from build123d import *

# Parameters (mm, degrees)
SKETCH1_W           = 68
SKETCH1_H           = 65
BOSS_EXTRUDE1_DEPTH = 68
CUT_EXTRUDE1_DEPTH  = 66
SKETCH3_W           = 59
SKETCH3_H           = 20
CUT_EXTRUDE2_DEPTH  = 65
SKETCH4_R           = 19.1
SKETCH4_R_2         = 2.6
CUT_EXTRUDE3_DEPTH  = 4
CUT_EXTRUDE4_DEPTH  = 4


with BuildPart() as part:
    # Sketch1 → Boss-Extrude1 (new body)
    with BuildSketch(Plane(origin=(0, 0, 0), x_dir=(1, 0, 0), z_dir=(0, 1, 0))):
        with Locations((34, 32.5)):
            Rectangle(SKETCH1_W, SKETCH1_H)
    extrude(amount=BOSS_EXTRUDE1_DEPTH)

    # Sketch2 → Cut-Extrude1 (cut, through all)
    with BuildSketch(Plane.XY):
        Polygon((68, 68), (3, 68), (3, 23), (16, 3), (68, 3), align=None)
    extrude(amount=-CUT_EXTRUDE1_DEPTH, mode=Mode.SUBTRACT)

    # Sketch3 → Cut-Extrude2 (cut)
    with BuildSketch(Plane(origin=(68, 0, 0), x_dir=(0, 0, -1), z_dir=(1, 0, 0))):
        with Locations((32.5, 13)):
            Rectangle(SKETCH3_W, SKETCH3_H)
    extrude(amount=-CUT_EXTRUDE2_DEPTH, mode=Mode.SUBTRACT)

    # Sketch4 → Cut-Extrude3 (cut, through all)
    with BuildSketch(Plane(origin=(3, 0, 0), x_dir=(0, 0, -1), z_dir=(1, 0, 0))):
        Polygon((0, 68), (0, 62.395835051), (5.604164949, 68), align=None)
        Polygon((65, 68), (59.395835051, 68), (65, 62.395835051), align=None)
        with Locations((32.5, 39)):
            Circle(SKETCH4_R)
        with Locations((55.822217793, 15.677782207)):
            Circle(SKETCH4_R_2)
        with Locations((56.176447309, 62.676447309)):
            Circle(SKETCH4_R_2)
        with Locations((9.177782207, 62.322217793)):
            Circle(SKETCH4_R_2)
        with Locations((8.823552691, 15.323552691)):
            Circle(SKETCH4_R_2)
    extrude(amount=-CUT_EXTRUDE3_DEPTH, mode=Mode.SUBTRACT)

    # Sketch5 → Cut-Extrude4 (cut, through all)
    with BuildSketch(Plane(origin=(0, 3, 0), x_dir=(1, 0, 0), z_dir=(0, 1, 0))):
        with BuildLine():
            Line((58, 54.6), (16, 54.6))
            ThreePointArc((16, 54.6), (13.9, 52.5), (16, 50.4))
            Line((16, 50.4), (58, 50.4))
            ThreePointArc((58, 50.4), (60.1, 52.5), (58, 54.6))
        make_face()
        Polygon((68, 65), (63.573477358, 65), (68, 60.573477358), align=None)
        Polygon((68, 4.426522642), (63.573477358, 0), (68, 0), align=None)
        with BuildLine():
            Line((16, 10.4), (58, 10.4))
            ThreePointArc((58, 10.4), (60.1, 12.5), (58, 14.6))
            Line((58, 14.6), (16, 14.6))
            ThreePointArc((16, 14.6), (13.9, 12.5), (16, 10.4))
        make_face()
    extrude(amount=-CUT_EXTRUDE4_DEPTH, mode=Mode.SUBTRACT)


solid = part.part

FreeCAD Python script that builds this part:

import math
import FreeCAD as App
import Part
import Sketcher


def add_polygon(sketch, points):
    """Adds a closed chain of lines whose ends are joined by coincident constraints."""
    first, n = sketch.GeometryCount, len(points)
    for a, b in zip(points, points[1:] + points[:1]):
        sketch.addGeometry(Part.LineSegment(App.Vector(*a, 0), App.Vector(*b, 0)), False)
    for i in range(n):
        sketch.addConstraint(Sketcher.Constraint("Coincident", first + i, 2, first + (i + 1) % n, 1))

doc = App.newDocument("Part")
params = doc.addObject("Spreadsheet::Sheet", "Params")
for row, (alias, value) in enumerate([
    ("sketch1_width", "68 mm"),
    ("sketch1_height", "65 mm"),
    ("pad1_length", "68 mm"),
    ("sketch2_width", "65 mm"),
    ("sketch2_width2", "52 mm"),
    ("sketch2_height", "45 mm"),
    ("sketch3_width", "20 mm"),
    ("sketch3_height", "59 mm"),
    ("pocket2_length", "65 mm"),
    ("sketch4_diameter", "38.2 mm"),
    ("sketch4_diameter2", "5.2 mm"),
    ("sketch5_radius", "2.1 mm"),
    ("sketch5_width", "42 mm"),
], start=1):
    params.set(f"A{row}", alias)
    params.set(f"B{row}", "=" + value)
    params.setAlias(f"B{row}", alias)

body = doc.addObject("PartDesign::Body", "Body")

# Sketch on XZ plane
sketch1 = doc.addObject("Sketcher::SketchObject", "Sketch")
body.addObject(sketch1)
sketch1.AttachmentSupport = (doc.XZ_Plane, [""])
sketch1.MapMode = "FlatFace"
add_polygon(sketch1, [(0, -65), (0, 0), (68, 0), (68, -65)])  # lines 0-3
sketch1.addConstraint(Sketcher.Constraint("Vertical", 0))
sketch1.addConstraint(Sketcher.Constraint("Horizontal", 1))
sketch1.addConstraint(Sketcher.Constraint("Vertical", 2))
sketch1.addConstraint(Sketcher.Constraint("Horizontal", 3))
sketch1.addConstraint(Sketcher.Constraint("Coincident", 0, 2, -1, 1))
sketch1.addConstraint(Sketcher.Constraint("DistanceX", 1, 1, 1, 2, 68.0))
sketch1.addConstraint(Sketcher.Constraint("DistanceY", 0, 1, 0, 2, 65.0))
sketch1.setExpression("Constraints[9]", "Params.sketch1_width")
sketch1.setExpression("Constraints[10]", "Params.sketch1_height")
pad1 = doc.addObject("PartDesign::Pad", "Pad")
body.addObject(pad1)
pad1.Profile = sketch1
pad1.setExpression("Length", "Params.pad1_length")
pad1.Reversed = True

# Sketch on XY plane
sketch2 = doc.addObject("Sketcher::SketchObject", "Sketch001")
body.addObject(sketch2)
sketch2.AttachmentSupport = (doc.XY_Plane, [""])
sketch2.MapMode = "FlatFace"
add_polygon(sketch2, [(68, 68), (3, 68), (3, 23), (16, 3), (68, 3)])  # lines 0-4
sketch2.addConstraint(Sketcher.Constraint("Horizontal", 0))
sketch2.addConstraint(Sketcher.Constraint("Vertical", 1))
sketch2.addConstraint(Sketcher.Constraint("Horizontal", 3))
sketch2.addConstraint(Sketcher.Constraint("Vertical", 4))
sketch2.addConstraint(Sketcher.Constraint("Equal", 0, 4))
sketch2.addConstraint(Sketcher.Constraint("DistanceX", 0, 2, 0, 1, 65.0))
sketch2.addConstraint(Sketcher.Constraint("DistanceX", 3, 1, 3, 2, 52.0))
sketch2.addConstraint(Sketcher.Constraint("DistanceY", 1, 2, 1, 1, 45.0))
sketch2.addConstraint(Sketcher.Constraint("DistanceX", -1, 1, 0, 2, 3.0))
sketch2.addConstraint(Sketcher.Constraint("DistanceY", -1, 1, 0, 2, 68.0))
sketch2.setExpression("Constraints[10]", "Params.sketch2_width")
sketch2.setExpression("Constraints[11]", "Params.sketch2_width2")
sketch2.setExpression("Constraints[12]", "Params.sketch2_height")
pocket1 = doc.addObject("PartDesign::Pocket", "Pocket")
body.addObject(pocket1)
pocket1.Profile = sketch2
pocket1.Type = "ThroughAll"

# Sketch on YZ plane
sketch3 = doc.addObject("Sketcher::SketchObject", "Sketch002")
body.addObject(sketch3)
sketch3.AttachmentSupport = (doc.YZ_Plane, [""])
sketch3.MapMode = "FlatFace"
sketch3.AttachmentOffset = App.Placement(App.Vector(0, 0, 68), App.Rotation())
add_polygon(sketch3, [(23, -3), (3, -3), (3, -62), (23, -62)])  # lines 0-3
sketch3.addConstraint(Sketcher.Constraint("Horizontal", 0))
sketch3.addConstraint(Sketcher.Constraint("Vertical", 1))
sketch3.addConstraint(Sketcher.Constraint("Horizontal", 2))
sketch3.addConstraint(Sketcher.Constraint("Vertical", 3))
sketch3.addConstraint(Sketcher.Constraint("DistanceX", 0, 2, 0, 1, 20.0))
sketch3.addConstraint(Sketcher.Constraint("DistanceY", 1, 2, 1, 1, 59.0))
sketch3.addConstraint(Sketcher.Constraint("DistanceX", -1, 1, 0, 2, 3.0))
sketch3.addConstraint(Sketcher.Constraint("DistanceY", 0, 2, -1, 1, 3.0))
sketch3.setExpression("Constraints[8]", "Params.sketch3_width")
sketch3.setExpression("Constraints[9]", "Params.sketch3_height")
pocket2 = doc.addObject("PartDesign::Pocket", "Pocket001")
body.addObject(pocket2)
pocket2.Profile = sketch3
pocket2.setExpression("Length", "Params.pocket2_length")

# Sketch on YZ plane
sketch4 = doc.addObject("Sketcher::SketchObject", "Sketch003")
body.addObject(sketch4)
sketch4.AttachmentSupport = (doc.YZ_Plane, [""])
sketch4.MapMode = "FlatFace"
sketch4.AttachmentOffset = App.Placement(App.Vector(0, 0, 3), App.Rotation())
add_polygon(sketch4, [(68, 0), (62.4, 0), (68, -5.6)])  # lines 0-2
add_polygon(sketch4, [(68, -65), (68, -59.4), (62.4, -65)])  # lines 3-5
sketch4.addGeometry(Part.Circle(App.Vector(39, -32.5, 0), App.Vector(0, 0, 1), 19.1), False)  # 6
sketch4.addGeometry(Part.Circle(App.Vector(15.7, -55.8, 0), App.Vector(0, 0, 1), 2.6), False)  # 7
sketch4.addGeometry(Part.Circle(App.Vector(62.7, -56.2, 0), App.Vector(0, 0, 1), 2.6), False)  # 8
sketch4.addGeometry(Part.Circle(App.Vector(62.3, -9.2, 0), App.Vector(0, 0, 1), 2.6), False)  # 9
sketch4.addGeometry(Part.Circle(App.Vector(15.3, -8.8, 0), App.Vector(0, 0, 1), 2.6), False)  # 10
sketch4.addConstraint(Sketcher.Constraint("Horizontal", 0))
sketch4.addConstraint(Sketcher.Constraint("Vertical", 2))
sketch4.addConstraint(Sketcher.Constraint("Vertical", 3))
sketch4.addConstraint(Sketcher.Constraint("Horizontal", 5))
sketch4.addConstraint(Sketcher.Constraint("Equal", 7, 8))
sketch4.addConstraint(Sketcher.Constraint("Equal", 8, 9))
sketch4.addConstraint(Sketcher.Constraint("Equal", 9, 10))
sketch4.addConstraint(Sketcher.Constraint("PointOnObject", 0, 2, -1))
sketch4.addConstraint(Sketcher.Constraint("Perpendicular", 1, 4))
sketch4.addConstraint(Sketcher.Constraint("Vertical", 2, 2, 3, 2))
sketch4.addConstraint(Sketcher.Constraint("Vertical", 0, 2, 4, 2))
sketch4.addConstraint(Sketcher.Constraint("Equal", 5, 2))
sketch4.addConstraint(Sketcher.Constraint("Diameter", 6, 38.2))
sketch4.addConstraint(Sketcher.Constraint("Diameter", 7, 5.2))
sketch4.addConstraint(Sketcher.Constraint("DistanceX", -1, 1, 6, 3, 39.0))
sketch4.addConstraint(Sketcher.Constraint("DistanceX", -1, 1, 1, 2, 68.0))
sketch4.addConstraint(Sketcher.Constraint("DistanceY", 4, 2, -1, 1, 65.0))
sketch4.addConstraint(Sketcher.Constraint("DistanceY", 6, 3, -1, 1, 32.5))
sketch4.addConstraint(Sketcher.Constraint("DistanceX", 0, 2, 0, 1, 5.604165))
sketch4.addConstraint(Sketcher.Constraint("DistanceY", 8, 3, 7, 3, 0.35423))
sketch4.addConstraint(Sketcher.Constraint("DistanceX", 9, 3, 8, 3, 0.35423))
sketch4.addConstraint(Sketcher.Constraint("DistanceX", 10, 3, 7, 3, 0.35423))
sketch4.addConstraint(Sketcher.Constraint("DistanceY", 9, 3, 10, 3, 0.35423))
sketch4.addConstraint(Sketcher.Constraint("DistanceX", -1, 1, 7, 3, 15.677782))
sketch4.addConstraint(Sketcher.Constraint("DistanceY", 7, 3, -1, 1, 55.822218))
sketch4.addConstraint(Sketcher.Constraint("DistanceX", -1, 1, 8, 3, 62.676447))
sketch4.addConstraint(Sketcher.Constraint("DistanceY", 9, 3, -1, 1, 9.177782))
sketch4.setExpression("Constraints[18]", "Params.sketch4_diameter")
sketch4.setExpression("Constraints[19]", "Params.sketch4_diameter2")
pocket3 = doc.addObject("PartDesign::Pocket", "Pocket002")
body.addObject(pocket3)
pocket3.Profile = sketch4
pocket3.Type = "ThroughAll"

# Sketch on XZ plane
sketch5 = doc.addObject("Sketcher::SketchObject", "Sketch004")
body.addObject(sketch5)
sketch5.AttachmentSupport = (doc.XZ_Plane, [""])
sketch5.MapMode = "FlatFace"
sketch5.AttachmentOffset = App.Placement(App.Vector(0, 0, -3), App.Rotation())
sketch5.addGeometry(Part.LineSegment(App.Vector(58, -54.6, 0), App.Vector(16, -54.6, 0)), False)  # 0
sketch5.addGeometry(Part.ArcOfCircle(Part.Circle(App.Vector(16, -52.5, 0), App.Vector(0, 0, 1), 2.1), math.radians(90), math.radians(270)), False)  # 1
sketch5.addGeometry(Part.LineSegment(App.Vector(16, -50.4, 0), App.Vector(58, -50.4, 0)), False)  # 2
sketch5.addGeometry(Part.ArcOfCircle(Part.Circle(App.Vector(58, -52.5, 0), App.Vector(0, 0, 1), 2.1), math.radians(-90), math.radians(90)), False)  # 3
add_polygon(sketch5, [(68, -65), (63.6, -65), (68, -60.6)])  # lines 4-6
add_polygon(sketch5, [(68, -4.4), (63.6, 0), (68, 0)])  # lines 7-9
sketch5.addGeometry(Part.LineSegment(App.Vector(16, -10.4, 0), App.Vector(58, -10.4, 0)), False)  # 10
sketch5.addGeometry(Part.ArcOfCircle(Part.Circle(App.Vector(58, -12.5, 0), App.Vector(0, 0, 1), 2.1), math.radians(-90), math.radians(90)), False)  # 11
sketch5.addGeometry(Part.LineSegment(App.Vector(58, -14.6, 0), App.Vector(16, -14.6, 0)), False)  # 12
sketch5.addGeometry(Part.ArcOfCircle(Part.Circle(App.Vector(16, -12.5, 0), App.Vector(0, 0, 1), 2.1), math.radians(90), math.radians(270)), False)  # 13
sketch5.addConstraint(Sketcher.Constraint("Tangent", 0, 2, 1, 2))
sketch5.addConstraint(Sketcher.Constraint("Tangent", 1, 1, 2, 1))
sketch5.addConstraint(Sketcher.Constraint("Tangent", 2, 2, 3, 2))
sketch5.addConstraint(Sketcher.Constraint("Tangent", 3, 1, 0, 1))
sketch5.addConstraint(Sketcher.Constraint("Tangent", 10, 2, 11, 2))
sketch5.addConstraint(Sketcher.Constraint("Tangent", 11, 1, 12, 1))
sketch5.addConstraint(Sketcher.Constraint("Tangent", 12, 2, 13, 2))
sketch5.addConstraint(Sketcher.Constraint("Tangent", 13, 1, 10, 1))
sketch5.addConstraint(Sketcher.Constraint("Horizontal", 0))
sketch5.addConstraint(Sketcher.Constraint("Horizontal", 2))
sketch5.addConstraint(Sketcher.Constraint("Horizontal", 4))
sketch5.addConstraint(Sketcher.Constraint("Vertical", 6))
sketch5.addConstraint(Sketcher.Constraint("Horizontal", 8))
sketch5.addConstraint(Sketcher.Constraint("Vertical", 9))
sketch5.addConstraint(Sketcher.Constraint("Horizontal", 10))
sketch5.addConstraint(Sketcher.Constraint("Horizontal", 12))
sketch5.addConstraint(Sketcher.Constraint("Equal", 3, 11))
sketch5.addConstraint(Sketcher.Constraint("PointOnObject", 7, 2, -1))
sketch5.addConstraint(Sketcher.Constraint("Perpendicular", 5, 7))
sketch5.addConstraint(Sketcher.Constraint("Vertical", 3, 3, 11, 3))
sketch5.addConstraint(Sketcher.Constraint("Vertical", 1, 3, 13, 3))
sketch5.addConstraint(Sketcher.Constraint("Vertical", 4, 2, 7, 2))
sketch5.addConstraint(Sketcher.Constraint("Vertical", 6, 2, 8, 2))
sketch5.addConstraint(Sketcher.Constraint("Equal", 8, 6))
sketch5.addConstraint(Sketcher.Constraint("Radius", 1, 2.1))
sketch5.addConstraint(Sketcher.Constraint("DistanceX", 0, 2, 0, 1, 42.0))
sketch5.addConstraint(Sketcher.Constraint("DistanceX", -1, 1, 1, 3, 16.0))
sketch5.addConstraint(Sketcher.Constraint("DistanceY", 4, 2, -1, 1, 65.0))
sketch5.addConstraint(Sketcher.Constraint("DistanceX", -1, 1, 5, 2, 68.0))
sketch5.addConstraint(Sketcher.Constraint("DistanceY", 3, 3, 11, 3, 40.0))
sketch5.addConstraint(Sketcher.Constraint("DistanceY", 1, 3, -1, 1, 52.5))
sketch5.addConstraint(Sketcher.Constraint("Distance", 5, 6.260048))
sketch5.setExpression("Constraints[30]", "Params.sketch5_radius")
sketch5.setExpression("Constraints[31]", "Params.sketch5_width")
pocket4 = doc.addObject("PartDesign::Pocket", "Pocket003")
body.addObject(pocket4)
pocket4.Profile = sketch5
pocket4.Type = "ThroughAll"
pocket4.Reversed = True

doc.recompute()
